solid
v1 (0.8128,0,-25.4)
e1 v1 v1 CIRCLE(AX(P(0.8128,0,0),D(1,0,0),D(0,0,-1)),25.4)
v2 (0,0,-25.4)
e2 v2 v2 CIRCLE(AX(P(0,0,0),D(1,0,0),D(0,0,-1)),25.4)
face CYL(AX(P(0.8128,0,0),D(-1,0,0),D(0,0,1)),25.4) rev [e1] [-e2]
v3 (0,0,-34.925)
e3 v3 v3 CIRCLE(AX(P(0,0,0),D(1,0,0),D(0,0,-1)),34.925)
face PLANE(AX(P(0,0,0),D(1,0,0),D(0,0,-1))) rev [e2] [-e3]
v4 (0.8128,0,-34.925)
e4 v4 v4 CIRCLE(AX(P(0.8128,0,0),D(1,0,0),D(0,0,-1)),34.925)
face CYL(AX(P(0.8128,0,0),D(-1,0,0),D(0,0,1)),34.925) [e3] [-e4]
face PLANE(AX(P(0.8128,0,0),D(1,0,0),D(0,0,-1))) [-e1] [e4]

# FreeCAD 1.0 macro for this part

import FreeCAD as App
import Part
import Sketcher

V = App.Vector
Q = App.Units.Quantity

doc = App.newDocument("Part")
body = doc.addObject("PartDesign::Body", "Body")

# Sketch on YZ plane
sketch1 = doc.addObject("Sketcher::SketchObject", "Sketch")
body.addObject(sketch1)
sketch1.AttachmentSupport = (doc.YZ_Plane, [""])
sketch1.MapMode = "FlatFace"
sketch1.addGeometry([
    Part.Circle(V(0, 0, 0), V(0, 0, 1), 34.925),
    Part.Circle(V(0, 0, 0), V(0, 0, 1), 25.4),
], False)
sketch1.addConstraint([
    Sketcher.Constraint("Coincident", 0, 3, -1, 1),
    Sketcher.Constraint("Coincident", 1, 3, -1, 1),
    Sketcher.Constraint("Diameter", 1, Q("2 in")),
    Sketcher.Constraint("Diameter", 0, Q("2.75 in")),
])
pad1 = doc.addObject("PartDesign::Pad", "Pad")
body.addObject(pad1)
pad1.Profile = sketch1
pad1.Length = Q("0.032 in")

doc.recompute()
